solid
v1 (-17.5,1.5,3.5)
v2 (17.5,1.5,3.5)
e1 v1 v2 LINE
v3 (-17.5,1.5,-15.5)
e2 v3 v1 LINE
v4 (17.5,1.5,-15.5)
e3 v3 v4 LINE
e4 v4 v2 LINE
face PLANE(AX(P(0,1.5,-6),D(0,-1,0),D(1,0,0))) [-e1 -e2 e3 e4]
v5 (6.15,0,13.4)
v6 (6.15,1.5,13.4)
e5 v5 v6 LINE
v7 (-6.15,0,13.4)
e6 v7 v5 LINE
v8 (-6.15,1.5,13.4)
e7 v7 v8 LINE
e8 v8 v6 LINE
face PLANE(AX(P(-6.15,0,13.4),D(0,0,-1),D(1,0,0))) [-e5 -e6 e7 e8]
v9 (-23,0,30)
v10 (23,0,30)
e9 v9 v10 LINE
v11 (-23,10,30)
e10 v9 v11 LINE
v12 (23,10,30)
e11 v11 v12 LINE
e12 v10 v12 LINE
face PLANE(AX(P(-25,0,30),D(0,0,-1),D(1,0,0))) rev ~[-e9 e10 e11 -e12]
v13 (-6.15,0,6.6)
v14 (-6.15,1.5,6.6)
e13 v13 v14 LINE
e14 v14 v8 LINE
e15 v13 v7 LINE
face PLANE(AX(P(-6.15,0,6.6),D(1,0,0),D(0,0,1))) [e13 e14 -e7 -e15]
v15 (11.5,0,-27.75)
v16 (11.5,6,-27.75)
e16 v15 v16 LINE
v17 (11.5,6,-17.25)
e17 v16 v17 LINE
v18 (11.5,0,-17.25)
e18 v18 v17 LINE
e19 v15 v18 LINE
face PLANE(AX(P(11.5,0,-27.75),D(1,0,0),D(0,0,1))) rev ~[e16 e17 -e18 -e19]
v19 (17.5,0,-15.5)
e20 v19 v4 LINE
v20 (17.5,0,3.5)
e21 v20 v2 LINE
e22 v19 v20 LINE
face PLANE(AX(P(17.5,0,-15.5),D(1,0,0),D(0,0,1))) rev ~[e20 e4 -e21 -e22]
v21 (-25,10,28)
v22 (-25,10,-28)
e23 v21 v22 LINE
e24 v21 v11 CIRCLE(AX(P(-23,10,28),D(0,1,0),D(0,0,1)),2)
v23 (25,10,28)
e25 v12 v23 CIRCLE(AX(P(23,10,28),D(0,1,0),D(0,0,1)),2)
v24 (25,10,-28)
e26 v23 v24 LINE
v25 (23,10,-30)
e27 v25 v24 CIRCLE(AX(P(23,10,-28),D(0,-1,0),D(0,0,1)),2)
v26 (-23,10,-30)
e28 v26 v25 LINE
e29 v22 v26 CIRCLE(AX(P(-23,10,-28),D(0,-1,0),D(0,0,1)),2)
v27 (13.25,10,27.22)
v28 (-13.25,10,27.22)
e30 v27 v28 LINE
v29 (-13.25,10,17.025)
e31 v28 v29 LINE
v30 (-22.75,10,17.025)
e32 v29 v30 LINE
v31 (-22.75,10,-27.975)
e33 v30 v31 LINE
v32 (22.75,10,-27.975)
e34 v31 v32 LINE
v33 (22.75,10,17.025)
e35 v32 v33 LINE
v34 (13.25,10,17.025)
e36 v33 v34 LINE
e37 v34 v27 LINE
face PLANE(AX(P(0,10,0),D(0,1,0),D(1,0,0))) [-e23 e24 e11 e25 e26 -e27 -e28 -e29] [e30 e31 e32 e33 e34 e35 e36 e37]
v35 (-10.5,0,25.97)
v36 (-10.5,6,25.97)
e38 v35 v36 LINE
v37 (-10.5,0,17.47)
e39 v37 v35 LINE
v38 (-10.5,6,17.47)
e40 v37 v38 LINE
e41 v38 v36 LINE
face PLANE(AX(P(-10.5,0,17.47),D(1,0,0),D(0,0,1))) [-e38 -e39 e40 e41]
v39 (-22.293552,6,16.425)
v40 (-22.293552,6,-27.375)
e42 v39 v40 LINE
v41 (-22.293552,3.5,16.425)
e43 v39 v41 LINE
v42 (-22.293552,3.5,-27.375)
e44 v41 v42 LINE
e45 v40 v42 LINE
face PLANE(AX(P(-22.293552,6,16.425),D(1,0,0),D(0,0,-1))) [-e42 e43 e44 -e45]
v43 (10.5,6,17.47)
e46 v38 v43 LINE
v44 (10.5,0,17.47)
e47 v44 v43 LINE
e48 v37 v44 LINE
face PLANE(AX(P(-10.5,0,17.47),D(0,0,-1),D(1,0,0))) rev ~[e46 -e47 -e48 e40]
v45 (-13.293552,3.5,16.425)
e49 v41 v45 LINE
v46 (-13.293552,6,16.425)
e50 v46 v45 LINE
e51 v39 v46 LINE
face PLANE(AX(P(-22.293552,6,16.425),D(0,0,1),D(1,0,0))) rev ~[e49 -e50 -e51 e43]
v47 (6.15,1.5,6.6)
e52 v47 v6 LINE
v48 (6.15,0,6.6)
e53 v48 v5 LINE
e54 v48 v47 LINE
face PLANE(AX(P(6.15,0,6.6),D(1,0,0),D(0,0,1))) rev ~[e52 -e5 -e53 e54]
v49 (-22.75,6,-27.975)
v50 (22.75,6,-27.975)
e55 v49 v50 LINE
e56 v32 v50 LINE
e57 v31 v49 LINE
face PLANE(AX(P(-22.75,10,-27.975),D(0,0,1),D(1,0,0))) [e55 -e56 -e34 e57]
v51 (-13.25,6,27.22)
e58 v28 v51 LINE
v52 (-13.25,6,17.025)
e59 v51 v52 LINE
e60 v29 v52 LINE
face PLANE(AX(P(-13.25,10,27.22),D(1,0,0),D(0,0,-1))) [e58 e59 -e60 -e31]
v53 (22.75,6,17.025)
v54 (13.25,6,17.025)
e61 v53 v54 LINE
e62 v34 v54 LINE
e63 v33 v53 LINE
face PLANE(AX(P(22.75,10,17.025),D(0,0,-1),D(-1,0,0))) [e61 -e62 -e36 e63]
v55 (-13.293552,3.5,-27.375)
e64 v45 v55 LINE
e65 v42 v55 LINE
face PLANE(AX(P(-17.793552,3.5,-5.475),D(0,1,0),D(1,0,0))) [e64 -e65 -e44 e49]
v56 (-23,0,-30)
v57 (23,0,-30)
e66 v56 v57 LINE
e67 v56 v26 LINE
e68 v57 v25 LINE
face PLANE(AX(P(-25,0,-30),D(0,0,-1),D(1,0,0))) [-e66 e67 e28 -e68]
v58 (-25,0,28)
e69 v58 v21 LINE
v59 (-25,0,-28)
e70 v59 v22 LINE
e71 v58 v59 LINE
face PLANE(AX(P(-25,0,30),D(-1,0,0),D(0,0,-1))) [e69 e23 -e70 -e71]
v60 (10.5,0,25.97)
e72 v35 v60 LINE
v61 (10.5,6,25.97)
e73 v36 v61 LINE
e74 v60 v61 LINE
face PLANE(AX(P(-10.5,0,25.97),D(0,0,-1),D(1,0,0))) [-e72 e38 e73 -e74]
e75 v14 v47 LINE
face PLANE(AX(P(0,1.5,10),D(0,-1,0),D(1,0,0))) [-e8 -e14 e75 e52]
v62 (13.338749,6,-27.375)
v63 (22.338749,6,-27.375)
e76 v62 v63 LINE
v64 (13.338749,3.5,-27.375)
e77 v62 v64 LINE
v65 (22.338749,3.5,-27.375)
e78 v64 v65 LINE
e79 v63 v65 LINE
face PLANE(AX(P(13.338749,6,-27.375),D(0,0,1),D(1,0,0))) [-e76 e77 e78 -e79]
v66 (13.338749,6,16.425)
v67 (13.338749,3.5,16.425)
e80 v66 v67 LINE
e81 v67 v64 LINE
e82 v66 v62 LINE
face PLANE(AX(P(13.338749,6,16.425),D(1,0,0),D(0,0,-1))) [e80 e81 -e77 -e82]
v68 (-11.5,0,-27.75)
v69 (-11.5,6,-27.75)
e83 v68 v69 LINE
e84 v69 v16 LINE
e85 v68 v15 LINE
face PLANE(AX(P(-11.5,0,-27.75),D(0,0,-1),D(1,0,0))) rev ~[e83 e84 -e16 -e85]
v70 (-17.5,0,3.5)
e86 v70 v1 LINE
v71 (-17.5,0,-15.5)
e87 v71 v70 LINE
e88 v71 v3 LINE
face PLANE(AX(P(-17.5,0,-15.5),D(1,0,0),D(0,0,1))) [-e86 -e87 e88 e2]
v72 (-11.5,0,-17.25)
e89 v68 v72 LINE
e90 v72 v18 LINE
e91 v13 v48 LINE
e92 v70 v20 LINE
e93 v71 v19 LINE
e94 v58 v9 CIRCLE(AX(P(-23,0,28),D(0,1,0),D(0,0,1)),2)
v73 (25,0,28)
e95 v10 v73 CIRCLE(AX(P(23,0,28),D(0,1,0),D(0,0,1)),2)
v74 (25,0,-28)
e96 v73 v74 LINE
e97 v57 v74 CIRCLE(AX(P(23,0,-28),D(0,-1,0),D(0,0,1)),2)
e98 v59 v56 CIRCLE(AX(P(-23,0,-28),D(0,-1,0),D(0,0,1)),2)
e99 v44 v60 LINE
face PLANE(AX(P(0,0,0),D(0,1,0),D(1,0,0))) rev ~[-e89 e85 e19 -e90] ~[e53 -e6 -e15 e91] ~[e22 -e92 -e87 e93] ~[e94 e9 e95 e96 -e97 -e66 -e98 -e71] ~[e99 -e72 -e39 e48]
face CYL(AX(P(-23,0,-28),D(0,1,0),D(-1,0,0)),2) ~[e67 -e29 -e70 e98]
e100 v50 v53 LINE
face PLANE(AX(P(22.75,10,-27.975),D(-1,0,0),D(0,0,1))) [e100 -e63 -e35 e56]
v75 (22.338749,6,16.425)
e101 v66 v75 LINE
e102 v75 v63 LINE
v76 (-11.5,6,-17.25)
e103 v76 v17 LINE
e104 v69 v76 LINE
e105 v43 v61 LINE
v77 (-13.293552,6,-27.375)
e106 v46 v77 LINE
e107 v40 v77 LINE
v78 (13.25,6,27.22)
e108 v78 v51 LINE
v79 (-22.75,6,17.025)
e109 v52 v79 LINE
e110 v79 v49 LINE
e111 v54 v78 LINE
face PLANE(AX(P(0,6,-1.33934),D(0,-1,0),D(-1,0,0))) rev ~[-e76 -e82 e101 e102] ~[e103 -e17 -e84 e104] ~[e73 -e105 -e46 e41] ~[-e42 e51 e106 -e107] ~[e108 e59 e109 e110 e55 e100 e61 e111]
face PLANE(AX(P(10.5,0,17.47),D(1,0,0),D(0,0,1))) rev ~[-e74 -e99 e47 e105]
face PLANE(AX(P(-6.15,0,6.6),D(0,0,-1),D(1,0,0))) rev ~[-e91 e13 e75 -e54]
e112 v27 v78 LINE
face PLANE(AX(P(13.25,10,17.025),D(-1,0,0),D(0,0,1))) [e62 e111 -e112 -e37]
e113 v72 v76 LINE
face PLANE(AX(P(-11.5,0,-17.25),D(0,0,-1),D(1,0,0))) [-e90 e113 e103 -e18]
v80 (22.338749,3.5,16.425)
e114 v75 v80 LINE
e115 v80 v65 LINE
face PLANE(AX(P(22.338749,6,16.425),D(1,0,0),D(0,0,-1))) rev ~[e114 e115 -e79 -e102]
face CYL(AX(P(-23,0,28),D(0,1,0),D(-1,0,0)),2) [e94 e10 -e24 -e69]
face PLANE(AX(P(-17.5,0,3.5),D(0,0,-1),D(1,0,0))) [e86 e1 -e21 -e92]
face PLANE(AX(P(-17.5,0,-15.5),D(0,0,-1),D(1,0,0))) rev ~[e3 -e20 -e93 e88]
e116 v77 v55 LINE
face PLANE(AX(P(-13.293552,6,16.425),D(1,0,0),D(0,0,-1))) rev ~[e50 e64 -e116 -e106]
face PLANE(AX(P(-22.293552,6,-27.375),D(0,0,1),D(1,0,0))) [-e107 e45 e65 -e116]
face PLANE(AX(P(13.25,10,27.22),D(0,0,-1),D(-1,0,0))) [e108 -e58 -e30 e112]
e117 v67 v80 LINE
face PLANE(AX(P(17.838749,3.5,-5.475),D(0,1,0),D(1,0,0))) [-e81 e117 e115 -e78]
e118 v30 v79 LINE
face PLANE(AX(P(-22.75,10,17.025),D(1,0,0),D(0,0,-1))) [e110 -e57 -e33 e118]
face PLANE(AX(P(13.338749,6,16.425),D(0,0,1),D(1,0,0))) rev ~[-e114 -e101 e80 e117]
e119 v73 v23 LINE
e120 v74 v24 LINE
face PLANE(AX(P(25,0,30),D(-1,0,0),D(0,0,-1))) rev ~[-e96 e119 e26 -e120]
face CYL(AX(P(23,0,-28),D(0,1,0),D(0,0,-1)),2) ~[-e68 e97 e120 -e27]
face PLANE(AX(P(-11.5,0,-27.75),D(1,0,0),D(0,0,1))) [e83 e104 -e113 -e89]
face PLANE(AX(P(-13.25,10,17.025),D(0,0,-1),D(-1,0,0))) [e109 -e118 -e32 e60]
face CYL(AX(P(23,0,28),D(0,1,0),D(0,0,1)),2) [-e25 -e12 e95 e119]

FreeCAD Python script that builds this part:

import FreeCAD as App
import Part
import Sketcher

V = App.Vector
Q = App.Units.Quantity


def edges_at(feature, points):
    """Names of the edges that pass closest to the given points."""
    edges = feature.Shape.Edges
    near = lambda p: min(range(len(edges)), key=lambda i: edges[i].distToShape(Part.Vertex(*p))[0])
    return sorted({f"Edge{near(p) + 1}" for p in points})


def add_polygon(sketch, points):
    """Adds a closed chain of lines whose ends are joined by coincident constraints."""
    first, n = sketch.GeometryCount, len(points)
    for a, b in zip(points, points[1:] + points[:1]):
        sketch.addGeometry(Part.LineSegment(App.Vector(*a, 0), App.Vector(*b, 0)), False)
    for i in range(n):
        sketch.addConstraint(Sketcher.Constraint("Coincident", first + i, 2, first + (i + 1) % n, 1))

doc = App.newDocument("Part")
body = doc.addObject("PartDesign::Body", "Body")

# Sketch on XZ plane
sketch1 = doc.addObject("Sketcher::SketchObject", "Sketch")
body.addObject(sketch1)
sketch1.AttachmentSupport = (doc.XZ_Plane, [""])
sketch1.MapMode = "FlatFace"
add_polygon(sketch1, [(-25, -30), (-25, 30), (25, 30), (25, -30)])  # lines 0-3
sketch1.addConstraint(Sketcher.Constraint("Vertical", 0))
sketch1.addConstraint(Sketcher.Constraint("Horizontal", 1))
sketch1.addConstraint(Sketcher.Constraint("Vertical", 2))
sketch1.addConstraint(Sketcher.Constraint("Horizontal", 3))
sketch1.addConstraint(Sketcher.Constraint("Symmetric", 0, 2, 2, 2, -1, 1))
sketch1.addConstraint(Sketcher.Constraint("DistanceX", 1, 1, 1, 2, Q("50 mm")))
sketch1.addConstraint(Sketcher.Constraint("DistanceY", 0, 1, 0, 2, Q("60 mm")))
pad1 = doc.addObject("PartDesign::Pad", "Pad")
body.addObject(pad1)
pad1.Profile = sketch1
pad1.Length = 10
pad1.Reversed = True

# Sketch on XZ plane
sketch2 = doc.addObject("Sketcher::SketchObject", "Sketch001")
body.addObject(sketch2)
sketch2.AttachmentSupport = (doc.XZ_Plane, [""])
sketch2.MapMode = "FlatFace"
sketch2.AttachmentOffset = App.Placement(V(0, 0, -10), App.Rotation())
add_polygon(sketch2, [(22.75, -27.975), (-22.75, -27.975), (-22.75, 17.025), (-13.25, 17.025), (-13.25, 27.22), (13.25, 27.22), (13.25, 17.025), (22.75, 17.025)])  # lines 0-7
sketch2.addConstraint(Sketcher.Constraint("Horizontal", 0))
sketch2.addConstraint(Sketcher.Constraint("Vertical", 1))
sketch2.addConstraint(Sketcher.Constraint("Horizontal", 2))
sketch2.addConstraint(Sketcher.Constraint("Vertical", 3))
sketch2.addConstraint(Sketcher.Constraint("Horizontal", 4))
sketch2.addConstraint(Sketcher.Constraint("Vertical", 5))
sketch2.addConstraint(Sketcher.Constraint("Horizontal", 6))
sketch2.addConstraint(Sketcher.Constraint("Vertical", 7))
sketch2.addConstraint(Sketcher.Constraint("Symmetric", 2, 2, 5, 2, -2))
sketch2.addConstraint(Sketcher.Constraint("Equal", 2, 6))
sketch2.addConstraint(Sketcher.Constraint("DistanceY", 1, 1, 1, 2, Q("45 mm")))
sketch2.addConstraint(Sketcher.Constraint("DistanceX", 0, 2, 0, 1, Q("45.5 mm")))
sketch2.addConstraint(Sketcher.Constraint("DistanceX", 2, 1, 2, 2, Q("9.5 mm")))
sketch2.addConstraint(Sketcher.Constraint("DistanceY", 3, 1, 3, 2, Q("10.195 mm")))
sketch2.addConstraint(Sketcher.Constraint("DistanceY", -1, 1, 3, 2, Q("27.22 mm")))
pocket1 = doc.addObject("PartDesign::Pocket", "Pocket")
body.addObject(pocket1)
pocket1.Profile = sketch2
pocket1.Length = 4
pocket1.Reversed = True

# Sketch on XZ plane
sketch3 = doc.addObject("Sketcher::SketchObject", "Sketch002")
body.addObject(sketch3)
sketch3.AttachmentSupport = (doc.XZ_Plane, [""])
sketch3.MapMode = "FlatFace"
add_polygon(sketch3, [(-11.5, -17.25), (-11.5, -27.75), (11.5, -27.75), (11.5, -17.25)])  # lines 0-3
add_polygon(sketch3, [(-10.5, 25.97), (-10.5, 17.47), (10.5, 17.47), (10.5, 25.97)])  # lines 4-7
sketch3.addConstraint(Sketcher.Constraint("Vertical", 0))
sketch3.addConstraint(Sketcher.Constraint("Horizontal", 1))
sketch3.addConstraint(Sketcher.Constraint("Vertical", 2))
sketch3.addConstraint(Sketcher.Constraint("Horizontal", 3))
sketch3.addConstraint(Sketcher.Constraint("Vertical", 4))
sketch3.addConstraint(Sketcher.Constraint("Horizontal", 5))
sketch3.addConstraint(Sketcher.Constraint("Vertical", 6))
sketch3.addConstraint(Sketcher.Constraint("Horizontal", 7))
sketch3.addConstraint(Sketcher.Constraint("DistanceX", 1, 1, 1, 2, Q("23 mm")))
sketch3.addConstraint(Sketcher.Constraint("DistanceX", 5, 1, 5, 2, Q("21 mm")))
sketch3.addConstraint(Sketcher.Constraint("DistanceY", 0, 2, 0, 1, Q("10.5 mm")))
sketch3.addConstraint(Sketcher.Constraint("DistanceY", 4, 2, 4, 1, Q("8.5 mm")))
sketch3.addConstraint(Sketcher.Constraint("DistanceX", 3, 2, 4, 2, Q("1 mm")))
sketch3.addConstraint(Sketcher.Constraint("DistanceX", 0, 2, -1, 1, Q("11.5 mm")))
sketch3.addConstraint(Sketcher.Constraint("DistanceY", 0, 2, -1, 1, Q("27.75 mm")))
sketch3.addConstraint(Sketcher.Constraint("DistanceY", -1, 1, 4, 2, Q("17.47 mm")))
pocket2 = doc.addObject("PartDesign::Pocket", "Pocket001")
body.addObject(pocket2)
pocket2.Profile = sketch3
pocket2.Length = 10

# Sketch on XZ plane
sketch4 = doc.addObject("Sketcher::SketchObject", "Sketch003")
body.addObject(sketch4)
sketch4.AttachmentSupport = (doc.XZ_Plane, [""])
sketch4.MapMode = "FlatFace"
sketch4.AttachmentOffset = App.Placement(V(0, 0, -6), App.Rotation())
add_polygon(sketch4, [(-22.293552, -27.375), (-22.293552, 16.425), (-13.293552, 16.425), (-13.293552, -27.375)])  # lines 0-3
add_polygon(sketch4, [(13.338749, -27.375), (13.338749, 16.425), (22.338749, 16.425), (22.338749, -27.375)])  # lines 4-7
sketch4.addConstraint(Sketcher.Constraint("Vertical", 0))
sketch4.addConstraint(Sketcher.Constraint("Horizontal", 1))
sketch4.addConstraint(Sketcher.Constraint("Vertical", 2))
sketch4.addConstraint(Sketcher.Constraint("Horizontal", 3))
sketch4.addConstraint(Sketcher.Constraint("Vertical", 4))
sketch4.addConstraint(Sketcher.Constraint("Horizontal", 5))
sketch4.addConstraint(Sketcher.Constraint("Vertical", 6))
sketch4.addConstraint(Sketcher.Constraint("Horizontal", 7))
sketch4.addConstraint(Sketcher.Constraint("Horizontal", 1, 2, 4, 2))
sketch4.addConstraint(Sketcher.Constraint("Horizontal", 3, 2, 6, 2))
sketch4.addConstraint(Sketcher.Constraint("Equal", 3, 5))
sketch4.addConstraint(Sketcher.Constraint("DistanceX", 1, 1, 1, 2, Q("9 mm")))
sketch4.addConstraint(Sketcher.Constraint("DistanceY", 0, 1, 0, 2, Q("43.8 mm")))
sketch4.addConstraint(Sketcher.Constraint("DistanceY", -1, 1, 0, 2, Q("16.425 mm")))
sketch4.addConstraint(Sketcher.Constraint("DistanceX", 1, 2, 4, 2, Q("26.632301 mm")))
sketch4.addConstraint(Sketcher.Constraint("DistanceX", 0, 2, -1, 1, Q("22.293552 mm")))
pocket3 = doc.addObject("PartDesign::Pocket", "Pocket002")
body.addObject(pocket3)
pocket3.Profile = sketch4
pocket3.Length = 2.5
pocket3.Reversed = True

# Sketch on XZ plane
sketch5 = doc.addObject("Sketcher::SketchObject", "Sketch004")
body.addObject(sketch5)
sketch5.AttachmentSupport = (doc.XZ_Plane, [""])
sketch5.MapMode = "FlatFace"
add_polygon(sketch5, [(-17.5, 3.5), (-17.5, -15.5), (17.5, -15.5), (17.5, 3.5)])  # lines 0-3
sketch5.addConstraint(Sketcher.Constraint("Vertical", 0))
sketch5.addConstraint(Sketcher.Constraint("Horizontal", 1))
sketch5.addConstraint(Sketcher.Constraint("Vertical", 2))
sketch5.addConstraint(Sketcher.Constraint("Horizontal", 3))
sketch5.addConstraint(Sketcher.Constraint("DistanceX", 1, 1, 1, 2, Q("35 mm")))
sketch5.addConstraint(Sketcher.Constraint("DistanceY", 0, 2, 0, 1, Q("19 mm")))
sketch5.addConstraint(Sketcher.Constraint("DistanceX", 0, 2, -1, 1, Q("17.5 mm")))
sketch5.addConstraint(Sketcher.Constraint("DistanceY", 0, 2, -1, 1, Q("15.5 mm")))
pocket4 = doc.addObject("PartDesign::Pocket", "Pocket003")
body.addObject(pocket4)
pocket4.Profile = sketch5
pocket4.Length = 1.5

# Sketch on XZ plane
sketch6 = doc.addObject("Sketcher::SketchObject", "Sketch005")
body.addObject(sketch6)
sketch6.AttachmentSupport = (doc.XZ_Plane, [""])
sketch6.MapMode = "FlatFace"
add_polygon(sketch6, [(-6.15, 13.4), (-6.15, 6.6), (6.15, 6.6), (6.15, 13.4)])  # lines 0-3
sketch6.addConstraint(Sketcher.Constraint("Vertical", 0))
sketch6.addConstraint(Sketcher.Constraint("Horizontal", 1))
sketch6.addConstraint(Sketcher.Constraint("Vertical", 2))
sketch6.addConstraint(Sketcher.Constraint("Horizontal", 3))
sketch6.addConstraint(Sketcher.Constraint("DistanceX", 1, 1, 1, 2, Q("12.3 mm")))
sketch6.addConstraint(Sketcher.Constraint("DistanceY", 0, 2, 0, 1, Q("6.8 mm")))
sketch6.addConstraint(Sketcher.Constraint("DistanceY", -1, 1, 0, 2, Q("6.6 mm")))
sketch6.addConstraint(Sketcher.Constraint("DistanceX", 0, 2, -1, 1, Q("6.15 mm")))
pocket5 = doc.addObject("PartDesign::Pocket", "Pocket004")
body.addObject(pocket5)
pocket5.Profile = sketch6
pocket5.Length = 1.5
doc.recompute()

fillet = doc.addObject("PartDesign::Fillet", "Fillet")
body.addObject(fillet)
fillet.Base = (pocket5, edges_at(pocket5, [
    (25, 5, 30),
    (-25, 5, 30),
    (-25, 5, -30),
    (25, 5, -30),
]))
fillet.Radius = 2

doc.recompute()
